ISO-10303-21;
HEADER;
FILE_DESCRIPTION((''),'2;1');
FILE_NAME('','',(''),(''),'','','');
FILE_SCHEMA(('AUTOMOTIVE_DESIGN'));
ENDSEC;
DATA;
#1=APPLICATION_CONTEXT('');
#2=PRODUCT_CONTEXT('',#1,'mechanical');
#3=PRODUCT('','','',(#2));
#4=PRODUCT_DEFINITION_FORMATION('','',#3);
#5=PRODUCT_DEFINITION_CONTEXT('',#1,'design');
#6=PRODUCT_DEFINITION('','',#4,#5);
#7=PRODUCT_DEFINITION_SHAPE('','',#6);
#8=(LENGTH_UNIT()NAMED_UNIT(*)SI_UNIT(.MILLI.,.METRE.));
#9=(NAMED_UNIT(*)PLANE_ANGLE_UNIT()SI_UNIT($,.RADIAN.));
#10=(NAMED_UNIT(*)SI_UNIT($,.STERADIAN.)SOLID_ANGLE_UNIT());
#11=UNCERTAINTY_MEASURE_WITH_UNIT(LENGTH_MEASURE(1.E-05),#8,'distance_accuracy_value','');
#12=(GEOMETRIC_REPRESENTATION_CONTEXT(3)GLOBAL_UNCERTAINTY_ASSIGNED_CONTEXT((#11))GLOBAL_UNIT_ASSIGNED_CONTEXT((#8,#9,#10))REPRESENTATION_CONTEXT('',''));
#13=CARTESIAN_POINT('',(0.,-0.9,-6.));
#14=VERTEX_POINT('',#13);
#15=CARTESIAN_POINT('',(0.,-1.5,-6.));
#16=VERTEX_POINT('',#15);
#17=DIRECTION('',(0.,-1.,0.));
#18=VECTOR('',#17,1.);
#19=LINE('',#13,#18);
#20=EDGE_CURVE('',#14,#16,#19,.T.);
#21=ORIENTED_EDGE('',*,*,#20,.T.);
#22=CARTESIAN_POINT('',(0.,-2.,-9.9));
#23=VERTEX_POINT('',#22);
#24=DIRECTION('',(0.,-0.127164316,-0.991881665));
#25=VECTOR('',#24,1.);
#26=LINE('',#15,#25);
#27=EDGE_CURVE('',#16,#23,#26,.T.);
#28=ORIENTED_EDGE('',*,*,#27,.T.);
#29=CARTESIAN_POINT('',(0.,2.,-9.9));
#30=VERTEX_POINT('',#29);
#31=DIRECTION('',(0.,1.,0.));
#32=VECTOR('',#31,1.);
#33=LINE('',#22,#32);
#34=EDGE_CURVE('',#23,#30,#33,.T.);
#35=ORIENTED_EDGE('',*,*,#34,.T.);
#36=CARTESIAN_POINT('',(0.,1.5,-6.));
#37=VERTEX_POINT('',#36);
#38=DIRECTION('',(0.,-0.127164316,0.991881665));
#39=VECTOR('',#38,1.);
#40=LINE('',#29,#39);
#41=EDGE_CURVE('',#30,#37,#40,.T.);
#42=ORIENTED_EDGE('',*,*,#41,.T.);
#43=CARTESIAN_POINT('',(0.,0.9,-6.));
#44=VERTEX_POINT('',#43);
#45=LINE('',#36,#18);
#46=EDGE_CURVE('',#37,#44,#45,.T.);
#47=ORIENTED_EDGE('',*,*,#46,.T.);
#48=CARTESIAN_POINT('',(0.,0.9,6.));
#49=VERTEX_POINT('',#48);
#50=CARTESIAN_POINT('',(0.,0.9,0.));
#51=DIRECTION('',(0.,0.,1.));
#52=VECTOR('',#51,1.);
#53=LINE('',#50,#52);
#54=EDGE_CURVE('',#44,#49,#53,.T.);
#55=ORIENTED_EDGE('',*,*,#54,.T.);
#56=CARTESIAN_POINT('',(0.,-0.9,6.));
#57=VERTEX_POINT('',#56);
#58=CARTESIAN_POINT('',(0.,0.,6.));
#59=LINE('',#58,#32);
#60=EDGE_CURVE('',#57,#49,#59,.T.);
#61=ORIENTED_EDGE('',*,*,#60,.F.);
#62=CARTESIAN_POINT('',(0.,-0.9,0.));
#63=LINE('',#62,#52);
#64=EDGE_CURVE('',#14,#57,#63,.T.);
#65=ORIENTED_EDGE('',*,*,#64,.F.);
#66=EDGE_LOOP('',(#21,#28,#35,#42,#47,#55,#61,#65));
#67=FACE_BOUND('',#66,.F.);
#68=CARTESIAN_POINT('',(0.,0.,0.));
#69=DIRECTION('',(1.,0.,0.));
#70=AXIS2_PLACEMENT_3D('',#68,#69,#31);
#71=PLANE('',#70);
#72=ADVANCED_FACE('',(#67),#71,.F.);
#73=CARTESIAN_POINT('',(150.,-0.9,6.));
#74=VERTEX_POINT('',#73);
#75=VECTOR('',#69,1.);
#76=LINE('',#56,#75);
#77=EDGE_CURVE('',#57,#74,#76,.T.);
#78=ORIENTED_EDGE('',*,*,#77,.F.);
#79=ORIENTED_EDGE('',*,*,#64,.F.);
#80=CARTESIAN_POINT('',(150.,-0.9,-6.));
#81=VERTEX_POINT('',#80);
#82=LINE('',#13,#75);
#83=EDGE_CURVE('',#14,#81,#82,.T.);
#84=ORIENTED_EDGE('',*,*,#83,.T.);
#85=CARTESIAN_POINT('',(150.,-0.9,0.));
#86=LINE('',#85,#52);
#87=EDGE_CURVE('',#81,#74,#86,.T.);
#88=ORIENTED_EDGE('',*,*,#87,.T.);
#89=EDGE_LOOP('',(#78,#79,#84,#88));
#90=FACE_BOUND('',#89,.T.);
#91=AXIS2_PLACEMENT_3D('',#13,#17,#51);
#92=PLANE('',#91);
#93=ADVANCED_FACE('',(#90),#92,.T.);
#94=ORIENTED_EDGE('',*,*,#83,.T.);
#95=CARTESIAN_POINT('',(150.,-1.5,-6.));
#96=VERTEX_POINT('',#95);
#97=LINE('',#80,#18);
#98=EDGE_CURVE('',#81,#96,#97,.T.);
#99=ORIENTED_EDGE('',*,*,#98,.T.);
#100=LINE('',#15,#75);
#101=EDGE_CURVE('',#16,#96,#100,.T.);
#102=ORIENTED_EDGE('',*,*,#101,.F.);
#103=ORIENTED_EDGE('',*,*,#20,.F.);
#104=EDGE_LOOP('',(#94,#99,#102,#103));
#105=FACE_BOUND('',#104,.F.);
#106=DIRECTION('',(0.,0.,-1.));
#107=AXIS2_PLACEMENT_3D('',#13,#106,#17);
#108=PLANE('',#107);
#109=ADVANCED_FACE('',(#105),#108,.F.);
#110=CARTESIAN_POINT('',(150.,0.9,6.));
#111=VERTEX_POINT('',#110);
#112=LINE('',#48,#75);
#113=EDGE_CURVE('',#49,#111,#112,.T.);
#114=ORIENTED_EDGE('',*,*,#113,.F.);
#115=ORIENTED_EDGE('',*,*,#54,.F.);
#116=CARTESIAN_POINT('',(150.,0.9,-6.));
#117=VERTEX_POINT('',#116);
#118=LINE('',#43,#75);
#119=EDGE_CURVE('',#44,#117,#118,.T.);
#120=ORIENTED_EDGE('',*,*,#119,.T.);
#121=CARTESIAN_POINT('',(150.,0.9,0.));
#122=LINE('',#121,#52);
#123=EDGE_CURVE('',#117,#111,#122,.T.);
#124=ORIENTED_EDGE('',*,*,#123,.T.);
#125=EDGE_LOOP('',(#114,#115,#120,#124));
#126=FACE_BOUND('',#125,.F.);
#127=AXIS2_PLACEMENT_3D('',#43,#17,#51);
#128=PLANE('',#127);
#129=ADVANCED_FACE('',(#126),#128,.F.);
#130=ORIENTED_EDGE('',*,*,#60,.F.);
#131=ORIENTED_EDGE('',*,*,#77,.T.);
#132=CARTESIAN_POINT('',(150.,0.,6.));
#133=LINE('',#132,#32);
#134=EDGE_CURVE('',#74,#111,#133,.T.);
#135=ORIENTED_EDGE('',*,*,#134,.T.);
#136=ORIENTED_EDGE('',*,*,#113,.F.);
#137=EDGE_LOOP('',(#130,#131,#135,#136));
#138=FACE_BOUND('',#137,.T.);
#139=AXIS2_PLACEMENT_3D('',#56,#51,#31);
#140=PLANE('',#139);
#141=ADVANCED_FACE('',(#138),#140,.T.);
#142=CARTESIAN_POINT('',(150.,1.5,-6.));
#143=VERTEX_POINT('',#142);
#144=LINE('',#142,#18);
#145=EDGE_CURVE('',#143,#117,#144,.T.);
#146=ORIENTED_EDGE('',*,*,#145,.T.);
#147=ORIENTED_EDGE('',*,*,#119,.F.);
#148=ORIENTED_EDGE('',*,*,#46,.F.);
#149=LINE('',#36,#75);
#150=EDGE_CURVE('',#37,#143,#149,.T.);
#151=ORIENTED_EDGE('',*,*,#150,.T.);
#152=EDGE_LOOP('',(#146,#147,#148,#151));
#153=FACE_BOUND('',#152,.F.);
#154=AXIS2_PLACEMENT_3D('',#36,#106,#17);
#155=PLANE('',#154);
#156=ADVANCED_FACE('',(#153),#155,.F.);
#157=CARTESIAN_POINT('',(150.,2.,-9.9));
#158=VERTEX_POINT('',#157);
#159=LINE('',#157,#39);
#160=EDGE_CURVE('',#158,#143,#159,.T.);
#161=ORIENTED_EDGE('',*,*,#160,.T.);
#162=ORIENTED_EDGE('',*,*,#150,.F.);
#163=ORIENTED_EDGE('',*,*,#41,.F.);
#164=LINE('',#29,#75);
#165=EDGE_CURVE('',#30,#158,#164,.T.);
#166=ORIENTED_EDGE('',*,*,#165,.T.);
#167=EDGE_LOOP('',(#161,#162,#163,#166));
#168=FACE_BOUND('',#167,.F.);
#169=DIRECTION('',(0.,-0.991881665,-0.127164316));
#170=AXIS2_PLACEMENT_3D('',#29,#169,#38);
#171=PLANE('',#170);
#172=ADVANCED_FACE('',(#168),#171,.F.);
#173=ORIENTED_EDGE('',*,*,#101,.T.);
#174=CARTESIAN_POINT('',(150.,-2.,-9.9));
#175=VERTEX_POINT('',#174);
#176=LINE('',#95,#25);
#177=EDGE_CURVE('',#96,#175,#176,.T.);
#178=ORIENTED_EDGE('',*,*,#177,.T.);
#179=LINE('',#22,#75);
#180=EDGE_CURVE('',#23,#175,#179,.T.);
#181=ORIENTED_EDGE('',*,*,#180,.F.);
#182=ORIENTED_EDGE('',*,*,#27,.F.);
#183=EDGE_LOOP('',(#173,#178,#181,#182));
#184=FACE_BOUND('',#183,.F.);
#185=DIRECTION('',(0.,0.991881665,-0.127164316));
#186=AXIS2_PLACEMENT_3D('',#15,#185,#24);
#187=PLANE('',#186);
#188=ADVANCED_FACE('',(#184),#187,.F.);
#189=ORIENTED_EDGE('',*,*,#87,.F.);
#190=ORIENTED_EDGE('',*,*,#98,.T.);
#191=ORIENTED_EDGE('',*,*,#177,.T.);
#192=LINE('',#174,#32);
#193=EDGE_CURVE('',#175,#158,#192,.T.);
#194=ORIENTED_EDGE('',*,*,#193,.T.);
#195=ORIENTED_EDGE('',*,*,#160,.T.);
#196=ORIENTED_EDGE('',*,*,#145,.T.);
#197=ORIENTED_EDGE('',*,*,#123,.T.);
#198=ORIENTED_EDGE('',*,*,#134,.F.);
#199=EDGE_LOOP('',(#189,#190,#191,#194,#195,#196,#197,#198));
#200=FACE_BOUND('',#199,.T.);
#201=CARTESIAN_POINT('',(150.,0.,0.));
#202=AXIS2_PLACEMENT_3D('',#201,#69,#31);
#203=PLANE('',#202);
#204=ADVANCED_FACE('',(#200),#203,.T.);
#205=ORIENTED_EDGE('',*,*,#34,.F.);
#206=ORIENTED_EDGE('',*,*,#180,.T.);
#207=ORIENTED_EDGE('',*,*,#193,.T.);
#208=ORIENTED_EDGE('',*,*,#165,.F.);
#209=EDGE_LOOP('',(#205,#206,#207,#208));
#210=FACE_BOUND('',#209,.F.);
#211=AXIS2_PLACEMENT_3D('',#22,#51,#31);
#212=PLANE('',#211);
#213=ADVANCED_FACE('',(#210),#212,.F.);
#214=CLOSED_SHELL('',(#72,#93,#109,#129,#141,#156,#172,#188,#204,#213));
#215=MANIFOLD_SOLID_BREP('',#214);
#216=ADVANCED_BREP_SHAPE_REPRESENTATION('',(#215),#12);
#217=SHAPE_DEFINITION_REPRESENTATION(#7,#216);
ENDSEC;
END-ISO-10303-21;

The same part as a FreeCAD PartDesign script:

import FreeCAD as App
import Part
import Sketcher

V = App.Vector
Q = App.Units.Quantity

doc = App.newDocument("Part")
params = doc.addObject("Spreadsheet::Sheet", "Params")
for row, (alias, value) in enumerate([
    ("sketch1_width", "4 mm"),
    ("sketch1_height", "12 mm"),
    ("sketch1_width2", "0.6 mm"),
    ("sketch1_width3", "1.8 mm"),
    ("pad1_length", "150 mm"),
], start=1):
    params.set(f"A{row}", alias)
    params.set(f"B{row}", "=" + value)
    params.setAlias(f"B{row}", alias)

body = doc.addObject("PartDesign::Body", "Body")

# Sketch on YZ plane
sketch1 = body.newObject("Sketcher::SketchObject", "Sketch")
sketch1.AttachmentSupport = (doc.getObject("YZ_Plane"), [""])
sketch1.MapMode = "FlatFace"
sketch1.addGeometry([
    Part.LineSegment(V(-0.9, 6, 0), V(-0.9, -6, 0)),  # 0
    Part.LineSegment(V(-0.9, -6, 0), V(-1.5, -6, 0)),  # 1
    Part.LineSegment(V(-1.5, -6, 0), V(-2, -9.9, 0)),  # 2
    Part.LineSegment(V(-2, -9.9, 0), V(2, -9.9, 0)),  # 3
    Part.LineSegment(V(2, -9.9, 0), V(1.5, -6, 0)),  # 4
    Part.LineSegment(V(1.5, -6, 0), V(0.9, -6, 0)),  # 5
    Part.LineSegment(V(0.9, -6, 0), V(0.9, 6, 0)),  # 6
    Part.LineSegment(V(0.9, 6, 0), V(-0.9, 6, 0)),  # 7
], False)
sketch1.addConstraint([
    Sketcher.Constraint("Coincident", 0, 2, 1, 1),
    Sketcher.Constraint("Coincident", 1, 2, 2, 1),
    Sketcher.Constraint("Coincident", 2, 2, 3, 1),
    Sketcher.Constraint("Coincident", 3, 2, 4, 1),
    Sketcher.Constraint("Coincident", 4, 2, 5, 1),
    Sketcher.Constraint("Coincident", 5, 2, 6, 1),
    Sketcher.Constraint("Coincident", 6, 2, 7, 1),
    Sketcher.Constraint("Coincident", 7, 2, 0, 1),
    Sketcher.Constraint("Vertical", 0),
    Sketcher.Constraint("Horizontal", 1),
    Sketcher.Constraint("Horizontal", 3),
    Sketcher.Constraint("Horizontal", 5),
    Sketcher.Constraint("Vertical", 6),
    Sketcher.Constraint("Horizontal", 7),
    Sketcher.Constraint("Symmetric", 0, 2, 6, 2, -1, 1),
    Sketcher.Constraint("Symmetric", 1, 2, 4, 2, -2),
    Sketcher.Constraint("Equal", 2, 4),
    Sketcher.Constraint("DistanceX", 3, 1, 3, 2, Q("4 mm")),
    Sketcher.Constraint("DistanceY", 0, 2, 0, 1, Q("12 mm")),
    Sketcher.Constraint("DistanceX", 1, 2, 1, 1, Q("0.6 mm")),
    Sketcher.Constraint("DistanceX", 7, 2, 7, 1, Q("1.8 mm")),
    Sketcher.Constraint("DistanceY", 2, 2, -1, 1, Q("9.9 mm")),
])
sketch1.setExpression("Constraints[17]", "Params.sketch1_width")
sketch1.setExpression("Constraints[18]", "Params.sketch1_height")
sketch1.setExpression("Constraints[19]", "Params.sketch1_width2")
sketch1.setExpression("Constraints[20]", "Params.sketch1_width3")
pad1 = body.newObject("PartDesign::Pad", "Pad")
pad1.Profile = sketch1
pad1.setExpression("Length", "Params.pad1_length")

doc.recompute()
